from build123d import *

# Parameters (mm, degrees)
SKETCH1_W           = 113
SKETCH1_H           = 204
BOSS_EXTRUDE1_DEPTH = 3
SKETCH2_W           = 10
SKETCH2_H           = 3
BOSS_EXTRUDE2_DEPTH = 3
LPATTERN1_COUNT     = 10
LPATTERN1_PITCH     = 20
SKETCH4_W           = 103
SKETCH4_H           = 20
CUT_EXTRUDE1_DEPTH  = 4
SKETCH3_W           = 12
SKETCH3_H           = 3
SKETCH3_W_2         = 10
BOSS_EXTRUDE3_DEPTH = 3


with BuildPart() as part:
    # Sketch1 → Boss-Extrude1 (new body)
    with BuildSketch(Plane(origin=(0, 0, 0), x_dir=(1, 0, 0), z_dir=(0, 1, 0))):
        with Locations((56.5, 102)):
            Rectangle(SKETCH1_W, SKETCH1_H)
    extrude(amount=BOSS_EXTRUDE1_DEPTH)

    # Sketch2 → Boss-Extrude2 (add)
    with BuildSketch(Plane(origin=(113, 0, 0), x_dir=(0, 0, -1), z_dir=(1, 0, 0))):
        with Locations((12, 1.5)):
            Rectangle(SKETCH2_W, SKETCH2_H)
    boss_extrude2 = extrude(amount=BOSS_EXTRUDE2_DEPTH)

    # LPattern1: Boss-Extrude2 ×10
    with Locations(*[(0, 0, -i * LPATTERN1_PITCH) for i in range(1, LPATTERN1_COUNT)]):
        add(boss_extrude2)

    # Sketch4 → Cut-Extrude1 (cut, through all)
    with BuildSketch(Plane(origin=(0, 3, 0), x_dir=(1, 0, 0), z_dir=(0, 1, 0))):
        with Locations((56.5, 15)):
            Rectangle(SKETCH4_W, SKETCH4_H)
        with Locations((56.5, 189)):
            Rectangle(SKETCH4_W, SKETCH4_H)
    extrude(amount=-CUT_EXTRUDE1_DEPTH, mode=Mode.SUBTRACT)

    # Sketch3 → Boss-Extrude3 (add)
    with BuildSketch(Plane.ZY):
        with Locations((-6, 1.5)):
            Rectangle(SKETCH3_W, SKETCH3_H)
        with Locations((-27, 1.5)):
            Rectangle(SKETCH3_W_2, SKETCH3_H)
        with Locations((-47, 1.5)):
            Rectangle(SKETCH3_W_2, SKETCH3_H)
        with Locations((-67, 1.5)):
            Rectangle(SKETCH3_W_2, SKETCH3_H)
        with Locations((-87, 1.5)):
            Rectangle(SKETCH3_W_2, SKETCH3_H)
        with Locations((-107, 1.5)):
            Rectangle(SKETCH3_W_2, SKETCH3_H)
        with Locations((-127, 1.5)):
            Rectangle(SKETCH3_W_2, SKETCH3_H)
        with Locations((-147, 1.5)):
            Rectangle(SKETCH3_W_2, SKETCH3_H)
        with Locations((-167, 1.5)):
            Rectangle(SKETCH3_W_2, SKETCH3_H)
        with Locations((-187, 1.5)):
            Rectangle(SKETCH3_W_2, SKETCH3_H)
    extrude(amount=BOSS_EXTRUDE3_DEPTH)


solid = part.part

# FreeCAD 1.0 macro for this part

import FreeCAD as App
import Part
import Sketcher

doc = App.newDocument("Part")
body = doc.addObject("PartDesign::Body", "Body")

sketch1 = body.newObject("Sketcher::SketchObject", "Sketch")
sketch1.AttachmentSupport = (doc.getObject("XZ_Plane"), [""])
sketch1.MapMode = "FlatFace"
sketch1.addGeometry([
    Part.LineSegment(App.Vector(0, -204, 0), App.Vector(0, 0, 0)),
    Part.LineSegment(App.Vector(0, 0, 0), App.Vector(113, 0, 0)),
    Part.LineSegment(App.Vector(113, 0, 0), App.Vector(113, -204, 0)),
    Part.LineSegment(App.Vector(113, -204, 0), App.Vector(0, -204, 0)),
], False)
sketch1.addConstraint([
    Sketcher.Constraint("Coincident", 0, 2, 1, 1),
    Sketcher.Constraint("Coincident", 1, 2, 2, 1),
    Sketcher.Constraint("Coincident", 2, 2, 3, 1),
    Sketcher.Constraint("Coincident", 3, 2, 0, 1),
    Sketcher.Constraint("Vertical", 0),
    Sketcher.Constraint("Horizontal", 1),
    Sketcher.Constraint("Vertical", 2),
    Sketcher.Constraint("Horizontal", 3),
    Sketcher.Constraint("Coincident", 0, 2, -1, 1),
    Sketcher.Constraint("DistanceX", 1, 1, 1, 2, 113.0),
    Sketcher.Constraint("DistanceY", 0, 1, 0, 2, 204.0),
])
pad1 = body.newObject("PartDesign::Pad", "Pad")
pad1.Profile = sketch1
pad1.Length = 3
pad1.Reversed = True

sketch2 = body.newObject("Sketcher::SketchObject", "Sketch001")
sketch2.AttachmentSupport = (doc.getObject("YZ_Plane"), [""])
sketch2.MapMode = "FlatFace"
sketch2.AttachmentOffset = App.Placement(App.Vector(0, 0, 113), App.Rotation())
sketch2.addGeometry([
    Part.LineSegment(App.Vector(3, -7, 0), App.Vector(0, -7, 0)),
    Part.LineSegment(App.Vector(0, -7, 0), App.Vector(0, -17, 0)),
    Part.LineSegment(App.Vector(0, -17, 0), App.Vector(3, -17, 0)),
    Part.LineSegment(App.Vector(3, -17, 0), App.Vector(3, -7, 0)),
], False)
sketch2.addConstraint([
    Sketcher.Constraint("Coincident", 0, 2, 1, 1),
    Sketcher.Constraint("Coincident", 1, 2, 2, 1),
    Sketcher.Constraint("Coincident", 2, 2, 3, 1),
    Sketcher.Constraint("Coincident", 3, 2, 0, 1),
    Sketcher.Constraint("Horizontal", 0),
    Sketcher.Constraint("Vertical", 1),
    Sketcher.Constraint("Horizontal", 2),
    Sketcher.Constraint("Vertical", 3),
    Sketcher.Constraint("PointOnObject", 0, 2, -2),
    Sketcher.Constraint("DistanceX", 0, 2, 0, 1, 3.0),
    Sketcher.Constraint("DistanceY", 1, 2, 1, 1, 10.0),
    Sketcher.Constraint("DistanceY", 0, 2, -1, 1, 7.0),
])
pad2 = body.newObject("PartDesign::Pad", "Pad001")
pad2.Profile = sketch2
pad2.Length = 3
doc.recompute()

linearpattern = body.newObject("PartDesign::LinearPattern", "LinearPattern")
linearpattern.Originals = [pad2]
linearpattern.Direction = (doc.getObject("Z_Axis"), [""])
linearpattern.Mode = "offset"
linearpattern.Offset = 20
linearpattern.Occurrences = 10
linearpattern.Reversed = True
body.Tip = linearpattern

sketch3 = body.newObject("Sketcher::SketchObject", "Sketch002")
sketch3.AttachmentSupport = (doc.getObject("XZ_Plane"), [""])
sketch3.MapMode = "FlatFace"
sketch3.AttachmentOffset = App.Placement(App.Vector(0, 0, -3), App.Rotation())
sketch3.addGeometry([
    Part.LineSegment(App.Vector(5, -25, 0), App.Vector(5, -5, 0)),
    Part.LineSegment(App.Vector(5, -5, 0), App.Vector(108, -5, 0)),
    Part.LineSegment(App.Vector(108, -5, 0), App.Vector(108, -25, 0)),
    Part.LineSegment(App.Vector(108, -25, 0), App.Vector(5, -25, 0)),
    Part.LineSegment(App.Vector(5, -199, 0), App.Vector(5, -179, 0)),
    Part.LineSegment(App.Vector(5, -179, 0), App.Vector(108, -179, 0)),
    Part.LineSegment(App.Vector(108, -179, 0), App.Vector(108, -199, 0)),
    Part.LineSegment(App.Vector(108, -199, 0), App.Vector(5, -199, 0)),
], False)
sketch3.addConstraint([
    Sketcher.Constraint("Coincident", 0, 2, 1, 1),
    Sketcher.Constraint("Coincident", 1, 2, 2, 1),
    Sketcher.Constraint("Coincident", 2, 2, 3, 1),
    Sketcher.Constraint("Coincident", 3, 2, 0, 1),
    Sketcher.Constraint("Coincident", 4, 2, 5, 1),
    Sketcher.Constraint("Coincident", 5, 2, 6, 1),
    Sketcher.Constraint("Coincident", 6, 2, 7, 1),
    Sketcher.Constraint("Coincident", 7, 2, 4, 1),
    Sketcher.Constraint("Vertical", 0),
    Sketcher.Constraint("Horizontal", 1),
    Sketcher.Constraint("Vertical", 2),
    Sketcher.Constraint("Horizontal", 3),
    Sketcher.Constraint("Vertical", 4),
    Sketcher.Constraint("Horizontal", 5),
    Sketcher.Constraint("Vertical", 6),
    Sketcher.Constraint("Horizontal", 7),
    Sketcher.Constraint("Vertical", 3, 2, 4, 2),
    Sketcher.Constraint("Vertical", 2, 2, 5, 2),
    Sketcher.Constraint("Equal", 2, 4),
    Sketcher.Constraint("DistanceX", 1, 1, 1, 2, 103.0),
    Sketcher.Constraint("DistanceY", 0, 1, 0, 2, 20.0),
    Sketcher.Constraint("DistanceX", -1, 1, 0, 2, 5.0),
    Sketcher.Constraint("DistanceY", 0, 2, -1, 1, 5.0),
    Sketcher.Constraint("DistanceY", 4, 2, -1, 1, 179.0),
])
pocket1 = body.newObject("PartDesign::Pocket", "Pocket")
pocket1.Profile = sketch3
pocket1.Type = "ThroughAll"
pocket1.Reversed = True

sketch4 = body.newObject("Sketcher::SketchObject", "Sketch003")
sketch4.AttachmentSupport = (doc.getObject("YZ_Plane"), [""])
sketch4.MapMode = "FlatFace"
sketch4.addGeometry([
    Part.LineSegment(App.Vector(3, -12, 0), App.Vector(0, -12, 0)),
    Part.LineSegment(App.Vector(0, -12, 0), App.Vector(0, 0, 0)),
    Part.LineSegment(App.Vector(0, 0, 0), App.Vector(3, 0, 0)),
    Part.LineSegment(App.Vector(3, 0, 0), App.Vector(3, -12, 0)),
    Part.LineSegment(App.Vector(3, -32, 0), App.Vector(0, -32, 0)),
    Part.LineSegment(App.Vector(0, -32, 0), App.Vector(0, -22, 0)),
    Part.LineSegment(App.Vector(0, -22, 0), App.Vector(3, -22, 0)),
    Part.LineSegment(App.Vector(3, -22, 0), App.Vector(3, -32, 0)),
    Part.LineSegment(App.Vector(3, -52, 0), App.Vector(0, -52, 0)),
    Part.LineSegment(App.Vector(0, -52, 0), App.Vector(0, -42, 0)),
    Part.LineSegment(App.Vector(0, -42, 0), App.Vector(3, -42, 0)),
    Part.LineSegment(App.Vector(3, -42, 0), App.Vector(3, -52, 0)),
    Part.LineSegment(App.Vector(3, -72, 0), App.Vector(0, -72, 0)),
    Part.LineSegment(App.Vector(0, -72, 0), App.Vector(0, -62, 0)),
    Part.LineSegment(App.Vector(0, -62, 0), App.Vector(3, -62, 0)),
    Part.LineSegment(App.Vector(3, -62, 0), App.Vector(3, -72, 0)),
    Part.LineSegment(App.Vector(3, -92, 0), App.Vector(0, -92, 0)),
    Part.LineSegment(App.Vector(0, -92, 0), App.Vector(0, -82, 0)),
    Part.LineSegment(App.Vector(0, -82, 0), App.Vector(3, -82, 0)),
    Part.LineSegment(App.Vector(3, -82, 0), App.Vector(3, -92, 0)),
    Part.LineSegment(App.Vector(3, -112, 0), App.Vector(0, -112, 0)),
    Part.LineSegment(App.Vector(0, -112, 0), App.Vector(0, -102, 0)),
    Part.LineSegment(App.Vector(0, -102, 0), App.Vector(3, -102, 0)),
    Part.LineSegment(App.Vector(3, -102, 0), App.Vector(3, -112, 0)),
    Part.LineSegment(App.Vector(3, -132, 0), App.Vector(0, -132, 0)),
    Part.LineSegment(App.Vector(0, -132, 0), App.Vector(0, -122, 0)),
    Part.LineSegment(App.Vector(0, -122, 0), App.Vector(3, -122, 0)),
    Part.LineSegment(App.Vector(3, -122, 0), App.Vector(3, -132, 0)),
    Part.LineSegment(App.Vector(3, -152, 0), App.Vector(0, -152, 0)),
    Part.LineSegment(App.Vector(0, -152, 0), App.Vector(0, -142, 0)),
    Part.LineSegment(App.Vector(0, -142, 0), App.Vector(3, -142, 0)),
    Part.LineSegment(App.Vector(3, -142, 0), App.Vector(3, -152, 0)),
    Part.LineSegment(App.Vector(3, -172, 0), App.Vector(0, -172, 0)),
    Part.LineSegment(App.Vector(0, -172, 0), App.Vector(0, -162, 0)),
    Part.LineSegment(App.Vector(0, -162, 0), App.Vector(3, -162, 0)),
    Part.LineSegment(App.Vector(3, -162, 0), App.Vector(3, -172, 0)),
    Part.LineSegment(App.Vector(3, -192, 0), App.Vector(0, -192, 0)),
    Part.LineSegment(App.Vector(0, -192, 0), App.Vector(0, -182, 0)),
    Part.LineSegment(App.Vector(0, -182, 0), App.Vector(3, -182, 0)),
    Part.LineSegment(App.Vector(3, -182, 0), App.Vector(3, -192, 0)),
], False)
sketch4.addConstraint([
    Sketcher.Constraint("Coincident", 0, 2, 1, 1),
    Sketcher.Constraint("Coincident", 1, 2, 2, 1),
    Sketcher.Constraint("Coincident", 2, 2, 3, 1),
    Sketcher.Constraint("Coincident", 3, 2, 0, 1),
    Sketcher.Constraint("Coincident", 4, 2, 5, 1),
    Sketcher.Constraint("Coincident", 5, 2, 6, 1),
    Sketcher.Constraint("Coincident", 6, 2, 7, 1),
    Sketcher.Constraint("Coincident", 7, 2, 4, 1),
    Sketcher.Constraint("Coincident", 8, 2, 9, 1),
    Sketcher.Constraint("Coincident", 9, 2, 10, 1),
    Sketcher.Constraint("Coincident", 10, 2, 11, 1),
    Sketcher.Constraint("Coincident", 11, 2, 8, 1),
    Sketcher.Constraint("Coincident", 12, 2, 13, 1),
    Sketcher.Constraint("Coincident", 13, 2, 14, 1),
    Sketcher.Constraint("Coincident", 14, 2, 15, 1),
    Sketcher.Constraint("Coincident", 15, 2, 12, 1),
    Sketcher.Constraint("Coincident", 16, 2, 17, 1),
    Sketcher.Constraint("Coincident", 17, 2, 18, 1),
    Sketcher.Constraint("Coincident", 18, 2, 19, 1),
    Sketcher.Constraint("Coincident", 19, 2, 16, 1),
    Sketcher.Constraint("Coincident", 20, 2, 21, 1),
    Sketcher.Constraint("Coincident", 21, 2, 22, 1),
    Sketcher.Constraint("Coincident", 22, 2, 23, 1),
    Sketcher.Constraint("Coincident", 23, 2, 20, 1),
    Sketcher.Constraint("Coincident", 24, 2, 25, 1),
    Sketcher.Constraint("Coincident", 25, 2, 26, 1),
    Sketcher.Constraint("Coincident", 26, 2, 27, 1),
    Sketcher.Constraint("Coincident", 27, 2, 24, 1),
    Sketcher.Constraint("Coincident", 28, 2, 29, 1),
    Sketcher.Constraint("Coincident", 29, 2, 30, 1),
    Sketcher.Constraint("Coincident", 30, 2, 31, 1),
    Sketcher.Constraint("Coincident", 31, 2, 28, 1),
    Sketcher.Constraint("Coincident", 32, 2, 33, 1),
    Sketcher.Constraint("Coincident", 33, 2, 34, 1),
    Sketcher.Constraint("Coincident", 34, 2, 35, 1),
    Sketcher.Constraint("Coincident", 35, 2, 32, 1),
    Sketcher.Constraint("Coincident", 36, 2, 37, 1),
    Sketcher.Constraint("Coincident", 37, 2, 38, 1),
    Sketcher.Constraint("Coincident", 38, 2, 39, 1),
    Sketcher.Constraint("Coincident", 39, 2, 36, 1),
    Sketcher.Constraint("Horizontal", 0),
    Sketcher.Constraint("Vertical", 1),
    Sketcher.Constraint("Horizontal", 2),
    Sketcher.Constraint("Vertical", 3),
    Sketcher.Constraint("Horizontal", 4),
    Sketcher.Constraint("Vertical", 5),
    Sketcher.Constraint("Horizontal", 6),
    Sketcher.Constraint("Vertical", 7),
    Sketcher.Constraint("Horizontal", 8),
    Sketcher.Constraint("Vertical", 9),
    Sketcher.Constraint("Horizontal", 10),
    Sketcher.Constraint("Vertical", 11),
    Sketcher.Constraint("Horizontal", 12),
    Sketcher.Constraint("Vertical", 13),
    Sketcher.Constraint("Horizontal", 14),
    Sketcher.Constraint("Vertical", 15),
    Sketcher.Constraint("Horizontal", 16),
    Sketcher.Constraint("Vertical", 17),
    Sketcher.Constraint("Horizontal", 18),
    Sketcher.Constraint("Vertical", 19),
    Sketcher.Constraint("Horizontal", 20),
    Sketcher.Constraint("Vertical", 21),
    Sketcher.Constraint("Horizontal", 22),
    Sketcher.Constraint("Vertical", 23),
    Sketcher.Constraint("Horizontal", 24),
    Sketcher.Constraint("Vertical", 25),
    Sketcher.Constraint("Horizontal", 26),
    Sketcher.Constraint("Vertical", 27),
    Sketcher.Constraint("Horizontal", 28),
    Sketcher.Constraint("Vertical", 29),
    Sketcher.Constraint("Horizontal", 30),
    Sketcher.Constraint("Vertical", 31),
    Sketcher.Constraint("Horizontal", 32),
    Sketcher.Constraint("Vertical", 33),
    Sketcher.Constraint("Horizontal", 34),
    Sketcher.Constraint("Vertical", 35),
    Sketcher.Constraint("Horizontal", 36),
    Sketcher.Constraint("Vertical", 37),
    Sketcher.Constraint("Horizontal", 38),
    Sketcher.Constraint("Vertical", 39),
    Sketcher.Constraint("Coincident", 1, 2, -1, 1),
    Sketcher.Constraint("PointOnObject", 4, 2, -2),
    Sketcher.Constraint("PointOnObject", 8, 2, -2),
    Sketcher.Constraint("PointOnObject", 12, 2, -2),
    Sketcher.Constraint("PointOnObject", 16, 2, -2),
    Sketcher.Constraint("PointOnObject", 20, 2, -2),
    Sketcher.Constraint("PointOnObject", 24, 2, -2),
    Sketcher.Constraint("PointOnObject", 28, 2, -2),
    Sketcher.Constraint("PointOnObject", 32, 2, -2),
    Sketcher.Constraint("PointOnObject", 36, 2, -2),
    Sketcher.Constraint("Vertical", 3, 2, 6, 2),
    Sketcher.Constraint("Vertical", 7, 2, 10, 2),
    Sketcher.Constraint("Vertical", 11, 2, 14, 2),
    Sketcher.Constraint("Vertical", 15, 2, 18, 2),
    Sketcher.Constraint("Vertical", 19, 2, 22, 2),
    Sketcher.Constraint("Vertical", 23, 2, 26, 2),
    Sketcher.Constraint("Vertical", 27, 2, 30, 2),
    Sketcher.Constraint("Vertical", 31, 2, 34, 2),
    Sketcher.Constraint("Vertical", 35, 2, 38, 2),
    Sketcher.Constraint("Equal", 7, 9),
    Sketcher.Constraint("Equal", 11, 13),
    Sketcher.Constraint("Equal", 15, 17),
    Sketcher.Constraint("Equal", 19, 21),
    Sketcher.Constraint("Equal", 23, 25),
    Sketcher.Constraint("Equal", 27, 29),
    Sketcher.Constraint("Equal", 31, 33),
    Sketcher.Constraint("Equal", 35, 37),
    Sketcher.Constraint("DistanceX", 0, 2, 0, 1, 3.0),
    Sketcher.Constraint("DistanceY", 1, 1, 1, 2, 12.0),
    Sketcher.Constraint("DistanceY", 5, 1, 5, 2, 10.0),
    Sketcher.Constraint("DistanceY", 4, 2, -1, 1, 32.0),
    Sketcher.Constraint("DistanceY", 8, 2, -1, 1, 52.0),
    Sketcher.Constraint("DistanceY", 12, 2, -1, 1, 72.0),
    Sketcher.Constraint("DistanceY", 16, 2, -1, 1, 92.0),
    Sketcher.Constraint("DistanceY", 20, 2, -1, 1, 112.0),
    Sketcher.Constraint("DistanceY", 24, 2, -1, 1, 132.0),
    Sketcher.Constraint("DistanceY", 28, 2, -1, 1, 152.0),
    Sketcher.Constraint("DistanceY", 32, 2, -1, 1, 172.0),
    Sketcher.Constraint("DistanceY", 36, 2, -1, 1, 192.0),
])
pad3 = body.newObject("PartDesign::Pad", "Pad002")
pad3.Profile = sketch4
pad3.Length = 3
pad3.Reversed = True

doc.recompute()
